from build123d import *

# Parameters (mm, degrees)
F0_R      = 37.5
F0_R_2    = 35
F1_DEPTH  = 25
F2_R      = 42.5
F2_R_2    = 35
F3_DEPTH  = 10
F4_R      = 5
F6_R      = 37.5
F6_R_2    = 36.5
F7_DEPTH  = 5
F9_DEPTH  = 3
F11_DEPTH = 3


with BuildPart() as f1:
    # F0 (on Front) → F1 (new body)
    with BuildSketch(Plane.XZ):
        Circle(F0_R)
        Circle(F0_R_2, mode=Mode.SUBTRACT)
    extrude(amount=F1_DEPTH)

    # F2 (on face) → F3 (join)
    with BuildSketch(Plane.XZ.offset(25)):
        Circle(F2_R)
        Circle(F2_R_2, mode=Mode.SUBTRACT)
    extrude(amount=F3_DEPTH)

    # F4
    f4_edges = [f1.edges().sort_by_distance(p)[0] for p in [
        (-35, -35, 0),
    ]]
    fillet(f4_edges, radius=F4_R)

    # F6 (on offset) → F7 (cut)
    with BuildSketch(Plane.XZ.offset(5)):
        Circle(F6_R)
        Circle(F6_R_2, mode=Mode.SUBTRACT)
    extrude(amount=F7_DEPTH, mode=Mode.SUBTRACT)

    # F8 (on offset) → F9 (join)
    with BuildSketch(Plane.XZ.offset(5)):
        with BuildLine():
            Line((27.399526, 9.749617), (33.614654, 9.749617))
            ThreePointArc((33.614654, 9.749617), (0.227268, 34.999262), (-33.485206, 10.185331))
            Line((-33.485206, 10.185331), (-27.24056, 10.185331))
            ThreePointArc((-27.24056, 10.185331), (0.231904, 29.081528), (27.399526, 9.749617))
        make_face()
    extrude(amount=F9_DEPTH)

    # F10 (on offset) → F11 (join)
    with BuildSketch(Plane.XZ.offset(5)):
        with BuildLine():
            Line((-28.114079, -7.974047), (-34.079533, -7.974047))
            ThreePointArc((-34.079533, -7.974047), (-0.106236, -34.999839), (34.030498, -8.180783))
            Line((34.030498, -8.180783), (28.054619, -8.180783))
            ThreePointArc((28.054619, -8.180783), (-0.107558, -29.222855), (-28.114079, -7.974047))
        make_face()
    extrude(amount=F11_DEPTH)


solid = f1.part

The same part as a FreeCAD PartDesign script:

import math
import FreeCAD as App
import Part
import Sketcher

V = App.Vector


def edges_at(feature, points):
    """Names of the edges that pass closest to the given points."""
    edges = feature.Shape.Edges
    near = lambda p: min(range(len(edges)), key=lambda i: edges[i].distToShape(Part.Vertex(*p))[0])
    return sorted({f"Edge{near(p) + 1}" for p in points})

doc = App.newDocument("Part")
body = doc.addObject("PartDesign::Body", "Body")

# Sketch on XZ plane
sketch1 = doc.addObject("Sketcher::SketchObject", "Sketch")
body.addObject(sketch1)
sketch1.AttachmentSupport = (doc.XZ_Plane, [""])
sketch1.MapMode = "FlatFace"
sketch1.addGeometry(Part.Circle(V(0, 0, 0), V(0, 0, 1), 37.5), False)
sketch1.addGeometry(Part.Circle(V(0, 0, 0), V(0, 0, 1), 35), False)
sketch1.addConstraint(Sketcher.Constraint("Coincident", 0, 3, -1, 1))
sketch1.addConstraint(Sketcher.Constraint("Coincident", 1, 3, -1, 1))
sketch1.addConstraint(Sketcher.Constraint("Diameter", 0, 75.0))
sketch1.addConstraint(Sketcher.Constraint("Diameter", 1, 70.0))
pad1 = doc.addObject("PartDesign::Pad", "Pad")
body.addObject(pad1)
pad1.Profile = sketch1
pad1.Length = 25

# Sketch on XZ plane
sketch2 = doc.addObject("Sketcher::SketchObject", "Sketch001")
body.addObject(sketch2)
sketch2.AttachmentSupport = (doc.XZ_Plane, [""])
sketch2.MapMode = "FlatFace"
sketch2.AttachmentOffset = App.Placement(V(0, 0, 25), App.Rotation())
sketch2.addGeometry(Part.Circle(V(0, 0, 0), V(0, 0, 1), 42.5), False)
sketch2.addGeometry(Part.Circle(V(0, 0, 0), V(0, 0, 1), 35), False)
sketch2.addConstraint(Sketcher.Constraint("Coincident", 0, 3, -1, 1))
sketch2.addConstraint(Sketcher.Constraint("Coincident", 1, 3, -1, 1))
sketch2.addConstraint(Sketcher.Constraint("Diameter", 0, 85.0))
sketch2.addConstraint(Sketcher.Constraint("Diameter", 1, 70.0))
pad2 = doc.addObject("PartDesign::Pad", "Pad001")
body.addObject(pad2)
pad2.Profile = sketch2
pad2.Length = 10
doc.recompute()

fillet = doc.addObject("PartDesign::Fillet", "Fillet")
body.addObject(fillet)
fillet.Base = (pad2, edges_at(pad2, [(-35, -35, 0)]))
fillet.Radius = 5

# Sketch on XZ plane
sketch3 = doc.addObject("Sketcher::SketchObject", "Sketch002")
body.addObject(sketch3)
sketch3.AttachmentSupport = (doc.XZ_Plane, [""])
sketch3.MapMode = "FlatFace"
sketch3.AttachmentOffset = App.Placement(V(0, 0, 5), App.Rotation())
sketch3.addGeometry(Part.Circle(V(0, 0, 0), V(0, 0, 1), 37.5), False)
sketch3.addGeometry(Part.Circle(V(0, 0, 0), V(0, 0, 1), 36.5), False)
sketch3.addConstraint(Sketcher.Constraint("Coincident", 0, 3, -1, 1))
sketch3.addConstraint(Sketcher.Constraint("Coincident", 1, 3, -1, 1))
sketch3.addConstraint(Sketcher.Constraint("Diameter", 0, 75.0))
sketch3.addConstraint(Sketcher.Constraint("Diameter", 1, 73.0))
pocket1 = doc.addObject("PartDesign::Pocket", "Pocket")
body.addObject(pocket1)
pocket1.Profile = sketch3
pocket1.Length = 5
pocket1.Reversed = True

# Sketch on XZ plane
sketch4 = doc.addObject("Sketcher::SketchObject", "Sketch003")
body.addObject(sketch4)
sketch4.AttachmentSupport = (doc.XZ_Plane, [""])
sketch4.MapMode = "FlatFace"
sketch4.AttachmentOffset = App.Placement(V(0, 0, 5), App.Rotation())
sketch4.addGeometry(Part.LineSegment(V(27.399526, 9.749617, 0), V(33.614654, 9.749617, 0)), False)
sketch4.addGeometry(Part.ArcOfCircle(Part.Circle(V(0, 0, 0), V(0, 0, 1), 35), math.radians(16.174309), math.radians(163.0816)), False)
sketch4.addGeometry(Part.LineSegment(V(-33.485206, 10.185331, 0), V(-27.24056, 10.185331, 0)), False)
sketch4.addGeometry(Part.ArcOfCircle(Part.Circle(V(0, 0, 0), V(0, 0, 1), 29.082453), math.radians(19.587166), math.radians(159.499071)), False)
sketch4.addConstraint(Sketcher.Constraint("Coincident", 0, 2, 1, 1))
sketch4.addConstraint(Sketcher.Constraint("Coincident", 1, 2, 2, 1))
sketch4.addConstraint(Sketcher.Constraint("Coincident", 2, 2, 3, 2))
sketch4.addConstraint(Sketcher.Constraint("Coincident", 3, 1, 0, 1))
sketch4.addConstraint(Sketcher.Constraint("Horizontal", 0))
sketch4.addConstraint(Sketcher.Constraint("Horizontal", 2))
sketch4.addConstraint(Sketcher.Constraint("Coincident", 1, 3, -1, 1))
sketch4.addConstraint(Sketcher.Constraint("Coincident", 3, 3, -1, 1))
sketch4.addConstraint(Sketcher.Constraint("Radius", 1, 35.0))
sketch4.addConstraint(Sketcher.Constraint("Radius", 3, 29.082453))
sketch4.addConstraint(Sketcher.Constraint("DistanceX", 0, 1, 0, 2, 6.215128))
sketch4.addConstraint(Sketcher.Constraint("DistanceX", 2, 1, 2, 2, 6.244646))
pad3 = doc.addObject("PartDesign::Pad", "Pad002")
body.addObject(pad3)
pad3.Profile = sketch4
pad3.Length = 3

# Sketch on XZ plane
sketch5 = doc.addObject("Sketcher::SketchObject", "Sketch004")
body.addObject(sketch5)
sketch5.AttachmentSupport = (doc.XZ_Plane, [""])
sketch5.MapMode = "FlatFace"
sketch5.AttachmentOffset = App.Placement(V(0, 0, 5), App.Rotation())
sketch5.addGeometry(Part.LineSegment(V(-28.114079, -7.974047, 0), V(-34.079533, -7.974047, 0)), False)
sketch5.addGeometry(Part.ArcOfCircle(Part.Circle(V(0, 0, 0), V(0, 0, 1), 35), math.radians(-166.830657), math.radians(-13.517164)), False)
sketch5.addGeometry(Part.LineSegment(V(34.030498, -8.180783, 0), V(28.054619, -8.180783, 0)), False)
sketch5.addGeometry(Part.ArcOfCircle(Part.Circle(V(0, 0.000001, 0), V(0, 0, 1), 29.223054), math.radians(-164.164975), math.radians(-16.256792)), False)
sketch5.addConstraint(Sketcher.Constraint("Coincident", 0, 2, 1, 1))
sketch5.addConstraint(Sketcher.Constraint("Coincident", 1, 2, 2, 1))
sketch5.addConstraint(Sketcher.Constraint("Coincident", 2, 2, 3, 2))
sketch5.addConstraint(Sketcher.Constraint("Coincident", 3, 1, 0, 1))
sketch5.addConstraint(Sketcher.Constraint("Horizontal", 0))
sketch5.addConstraint(Sketcher.Constraint("Horizontal", 2))
sketch5.addConstraint(Sketcher.Constraint("Coincident", 1, 3, -1, 1))
sketch5.addConstraint(Sketcher.Constraint("Coincident", 3, 3, -1, 1))
sketch5.addConstraint(Sketcher.Constraint("Radius", 1, 35.0))
sketch5.addConstraint(Sketcher.Constraint("Radius", 3, 29.223054))
sketch5.addConstraint(Sketcher.Constraint("DistanceX", 2, 2, 2, 1, 5.975879))
sketch5.addConstraint(Sketcher.Constraint("DistanceX", 3, 1, 2, 2, 56.168698))
pad4 = doc.addObject("PartDesign::Pad", "Pad003")
body.addObject(pad4)
pad4.Profile = sketch5
pad4.Length = 3

doc.recompute()
